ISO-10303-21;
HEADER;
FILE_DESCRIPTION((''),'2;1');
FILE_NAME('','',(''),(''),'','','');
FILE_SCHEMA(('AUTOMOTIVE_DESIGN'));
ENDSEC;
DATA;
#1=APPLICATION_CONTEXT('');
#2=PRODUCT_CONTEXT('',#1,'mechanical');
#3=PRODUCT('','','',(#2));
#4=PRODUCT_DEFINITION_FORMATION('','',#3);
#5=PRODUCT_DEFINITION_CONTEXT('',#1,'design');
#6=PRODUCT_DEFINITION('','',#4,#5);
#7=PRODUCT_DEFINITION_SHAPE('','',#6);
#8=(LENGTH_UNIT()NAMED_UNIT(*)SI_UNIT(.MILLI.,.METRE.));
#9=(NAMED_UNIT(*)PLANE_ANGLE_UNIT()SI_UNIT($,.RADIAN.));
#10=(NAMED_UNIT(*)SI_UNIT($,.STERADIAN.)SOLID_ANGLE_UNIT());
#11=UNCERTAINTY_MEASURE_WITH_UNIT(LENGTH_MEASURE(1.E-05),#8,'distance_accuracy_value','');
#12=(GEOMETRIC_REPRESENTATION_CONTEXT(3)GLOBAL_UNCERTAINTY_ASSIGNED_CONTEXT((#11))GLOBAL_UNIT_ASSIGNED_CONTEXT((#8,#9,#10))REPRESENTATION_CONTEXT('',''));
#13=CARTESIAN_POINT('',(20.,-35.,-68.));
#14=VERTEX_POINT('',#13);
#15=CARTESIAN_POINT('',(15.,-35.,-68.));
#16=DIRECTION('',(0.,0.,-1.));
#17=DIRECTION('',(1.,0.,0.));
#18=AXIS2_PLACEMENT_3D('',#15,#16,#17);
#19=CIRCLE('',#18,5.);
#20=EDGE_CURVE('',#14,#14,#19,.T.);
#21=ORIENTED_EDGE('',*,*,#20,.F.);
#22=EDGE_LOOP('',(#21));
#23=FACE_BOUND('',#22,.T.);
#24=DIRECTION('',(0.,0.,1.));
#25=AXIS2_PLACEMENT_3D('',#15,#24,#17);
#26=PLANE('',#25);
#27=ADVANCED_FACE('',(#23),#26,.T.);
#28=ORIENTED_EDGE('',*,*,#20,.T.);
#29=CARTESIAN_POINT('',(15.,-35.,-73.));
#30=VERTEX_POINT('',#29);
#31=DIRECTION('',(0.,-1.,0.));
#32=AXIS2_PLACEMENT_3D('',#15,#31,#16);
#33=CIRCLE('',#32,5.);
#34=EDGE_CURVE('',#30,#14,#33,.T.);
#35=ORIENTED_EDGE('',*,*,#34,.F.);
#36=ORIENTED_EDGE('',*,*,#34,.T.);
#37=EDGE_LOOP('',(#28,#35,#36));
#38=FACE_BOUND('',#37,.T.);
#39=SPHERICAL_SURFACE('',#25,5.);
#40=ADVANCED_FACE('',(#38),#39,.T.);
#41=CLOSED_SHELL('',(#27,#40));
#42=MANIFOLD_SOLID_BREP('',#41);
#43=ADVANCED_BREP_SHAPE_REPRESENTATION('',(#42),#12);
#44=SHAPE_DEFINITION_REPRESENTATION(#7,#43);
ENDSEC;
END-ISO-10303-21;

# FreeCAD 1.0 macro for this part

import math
import FreeCAD as App
import Part
import Sketcher
Q = App.Units.Quantity


def add_polygon(sketch, points):
    """Adds a closed chain of lines whose ends are joined by coincident constraints."""
    first, n = sketch.GeometryCount, len(points)
    for a, b in zip(points, points[1:] + points[:1]):
        sketch.addGeometry(Part.LineSegment(App.Vector(*a, 0), App.Vector(*b, 0)), False)
    for i in range(n):
        sketch.addConstraint(Sketcher.Constraint("Coincident", first + i, 2, first + (i + 1) % n, 1))

doc = App.newDocument("Part")
body = doc.addObject("PartDesign::Body", "Body")

# Sketch on XY plane
sketch1 = body.newObject("Sketcher::SketchObject", "Sketch")
sketch1.AttachmentSupport = (doc.getObject("XY_Plane"), [""])
sketch1.MapMode = "FlatFace"
add_polygon(sketch1, [(-5, 5), (-5, -5), (5, -5), (5, 5)])  # lines 0-3
sketch1.addConstraint([
    Sketcher.Constraint("Vertical", 0),
    Sketcher.Constraint("Horizontal", 1),
    Sketcher.Constraint("Vertical", 2),
    Sketcher.Constraint("Horizontal", 3),
    Sketcher.Constraint("Symmetric", 0, 2, 2, 2, -1, 1),
    Sketcher.Constraint("Equal", 3, 0),
    Sketcher.Constraint("DistanceX", 1, 1, 1, 2, Q("10 mm")),
])
pad1 = body.newObject("PartDesign::Pad", "Pad")
pad1.Profile = sketch1
pad1.Length = 10
body2 = doc.addObject("PartDesign::Body", "Body001")

# Sketch on XZ plane
sketch2 = body2.newObject("Sketcher::SketchObject", "Sketch001")
sketch2.AttachmentSupport = (doc.getObject("XZ_Plane001"), [""])
sketch2.MapMode = "FlatFace"
sketch2.addGeometry([
    Part.ArcOfCircle(Part.Circle(App.Vector(0, 0, 0), App.Vector(0, 0, 1), 5), math.radians(-90), math.radians(90)),
    Part.LineSegment(App.Vector(0, 5, 0), App.Vector(0, -5, 0)),
], False)
sketch2.addConstraint([
    Sketcher.Constraint("Coincident", 0, 1, 1, 2),
    Sketcher.Constraint("Coincident", 1, 1, 0, 2),
    Sketcher.Constraint("Vertical", 1),
    Sketcher.Constraint("Coincident", 0, 3, -1, 1),
    Sketcher.Constraint("PointOnObject", 0, 1, -2),
    Sketcher.Constraint("Radius", 0, Q("5 mm")),
])
revolution = body2.newObject("PartDesign::Revolution", "Revolution")
revolution.Profile = sketch2
revolution.ReferenceAxis = (sketch2, ["V_Axis"])
revolution.Angle = 360
doc.recompute()

boolean = body2.newObject("PartDesign::Boolean", "Boolean")
boolean.Type = "Cut"
boolean.addObjects([body])
body3 = doc.addObject("PartDesign::Body", "Body002")
doc.recompute()

body2.Placement = App.Placement(App.Vector(15, -35, -68), App.Rotation(App.Vector(0, 0, 1), 0))
boolean2 = body3.newObject("PartDesign::Boolean", "Boolean001")
boolean2.Type = "Fuse"
boolean2.addObjects([body2])

doc.recompute()
